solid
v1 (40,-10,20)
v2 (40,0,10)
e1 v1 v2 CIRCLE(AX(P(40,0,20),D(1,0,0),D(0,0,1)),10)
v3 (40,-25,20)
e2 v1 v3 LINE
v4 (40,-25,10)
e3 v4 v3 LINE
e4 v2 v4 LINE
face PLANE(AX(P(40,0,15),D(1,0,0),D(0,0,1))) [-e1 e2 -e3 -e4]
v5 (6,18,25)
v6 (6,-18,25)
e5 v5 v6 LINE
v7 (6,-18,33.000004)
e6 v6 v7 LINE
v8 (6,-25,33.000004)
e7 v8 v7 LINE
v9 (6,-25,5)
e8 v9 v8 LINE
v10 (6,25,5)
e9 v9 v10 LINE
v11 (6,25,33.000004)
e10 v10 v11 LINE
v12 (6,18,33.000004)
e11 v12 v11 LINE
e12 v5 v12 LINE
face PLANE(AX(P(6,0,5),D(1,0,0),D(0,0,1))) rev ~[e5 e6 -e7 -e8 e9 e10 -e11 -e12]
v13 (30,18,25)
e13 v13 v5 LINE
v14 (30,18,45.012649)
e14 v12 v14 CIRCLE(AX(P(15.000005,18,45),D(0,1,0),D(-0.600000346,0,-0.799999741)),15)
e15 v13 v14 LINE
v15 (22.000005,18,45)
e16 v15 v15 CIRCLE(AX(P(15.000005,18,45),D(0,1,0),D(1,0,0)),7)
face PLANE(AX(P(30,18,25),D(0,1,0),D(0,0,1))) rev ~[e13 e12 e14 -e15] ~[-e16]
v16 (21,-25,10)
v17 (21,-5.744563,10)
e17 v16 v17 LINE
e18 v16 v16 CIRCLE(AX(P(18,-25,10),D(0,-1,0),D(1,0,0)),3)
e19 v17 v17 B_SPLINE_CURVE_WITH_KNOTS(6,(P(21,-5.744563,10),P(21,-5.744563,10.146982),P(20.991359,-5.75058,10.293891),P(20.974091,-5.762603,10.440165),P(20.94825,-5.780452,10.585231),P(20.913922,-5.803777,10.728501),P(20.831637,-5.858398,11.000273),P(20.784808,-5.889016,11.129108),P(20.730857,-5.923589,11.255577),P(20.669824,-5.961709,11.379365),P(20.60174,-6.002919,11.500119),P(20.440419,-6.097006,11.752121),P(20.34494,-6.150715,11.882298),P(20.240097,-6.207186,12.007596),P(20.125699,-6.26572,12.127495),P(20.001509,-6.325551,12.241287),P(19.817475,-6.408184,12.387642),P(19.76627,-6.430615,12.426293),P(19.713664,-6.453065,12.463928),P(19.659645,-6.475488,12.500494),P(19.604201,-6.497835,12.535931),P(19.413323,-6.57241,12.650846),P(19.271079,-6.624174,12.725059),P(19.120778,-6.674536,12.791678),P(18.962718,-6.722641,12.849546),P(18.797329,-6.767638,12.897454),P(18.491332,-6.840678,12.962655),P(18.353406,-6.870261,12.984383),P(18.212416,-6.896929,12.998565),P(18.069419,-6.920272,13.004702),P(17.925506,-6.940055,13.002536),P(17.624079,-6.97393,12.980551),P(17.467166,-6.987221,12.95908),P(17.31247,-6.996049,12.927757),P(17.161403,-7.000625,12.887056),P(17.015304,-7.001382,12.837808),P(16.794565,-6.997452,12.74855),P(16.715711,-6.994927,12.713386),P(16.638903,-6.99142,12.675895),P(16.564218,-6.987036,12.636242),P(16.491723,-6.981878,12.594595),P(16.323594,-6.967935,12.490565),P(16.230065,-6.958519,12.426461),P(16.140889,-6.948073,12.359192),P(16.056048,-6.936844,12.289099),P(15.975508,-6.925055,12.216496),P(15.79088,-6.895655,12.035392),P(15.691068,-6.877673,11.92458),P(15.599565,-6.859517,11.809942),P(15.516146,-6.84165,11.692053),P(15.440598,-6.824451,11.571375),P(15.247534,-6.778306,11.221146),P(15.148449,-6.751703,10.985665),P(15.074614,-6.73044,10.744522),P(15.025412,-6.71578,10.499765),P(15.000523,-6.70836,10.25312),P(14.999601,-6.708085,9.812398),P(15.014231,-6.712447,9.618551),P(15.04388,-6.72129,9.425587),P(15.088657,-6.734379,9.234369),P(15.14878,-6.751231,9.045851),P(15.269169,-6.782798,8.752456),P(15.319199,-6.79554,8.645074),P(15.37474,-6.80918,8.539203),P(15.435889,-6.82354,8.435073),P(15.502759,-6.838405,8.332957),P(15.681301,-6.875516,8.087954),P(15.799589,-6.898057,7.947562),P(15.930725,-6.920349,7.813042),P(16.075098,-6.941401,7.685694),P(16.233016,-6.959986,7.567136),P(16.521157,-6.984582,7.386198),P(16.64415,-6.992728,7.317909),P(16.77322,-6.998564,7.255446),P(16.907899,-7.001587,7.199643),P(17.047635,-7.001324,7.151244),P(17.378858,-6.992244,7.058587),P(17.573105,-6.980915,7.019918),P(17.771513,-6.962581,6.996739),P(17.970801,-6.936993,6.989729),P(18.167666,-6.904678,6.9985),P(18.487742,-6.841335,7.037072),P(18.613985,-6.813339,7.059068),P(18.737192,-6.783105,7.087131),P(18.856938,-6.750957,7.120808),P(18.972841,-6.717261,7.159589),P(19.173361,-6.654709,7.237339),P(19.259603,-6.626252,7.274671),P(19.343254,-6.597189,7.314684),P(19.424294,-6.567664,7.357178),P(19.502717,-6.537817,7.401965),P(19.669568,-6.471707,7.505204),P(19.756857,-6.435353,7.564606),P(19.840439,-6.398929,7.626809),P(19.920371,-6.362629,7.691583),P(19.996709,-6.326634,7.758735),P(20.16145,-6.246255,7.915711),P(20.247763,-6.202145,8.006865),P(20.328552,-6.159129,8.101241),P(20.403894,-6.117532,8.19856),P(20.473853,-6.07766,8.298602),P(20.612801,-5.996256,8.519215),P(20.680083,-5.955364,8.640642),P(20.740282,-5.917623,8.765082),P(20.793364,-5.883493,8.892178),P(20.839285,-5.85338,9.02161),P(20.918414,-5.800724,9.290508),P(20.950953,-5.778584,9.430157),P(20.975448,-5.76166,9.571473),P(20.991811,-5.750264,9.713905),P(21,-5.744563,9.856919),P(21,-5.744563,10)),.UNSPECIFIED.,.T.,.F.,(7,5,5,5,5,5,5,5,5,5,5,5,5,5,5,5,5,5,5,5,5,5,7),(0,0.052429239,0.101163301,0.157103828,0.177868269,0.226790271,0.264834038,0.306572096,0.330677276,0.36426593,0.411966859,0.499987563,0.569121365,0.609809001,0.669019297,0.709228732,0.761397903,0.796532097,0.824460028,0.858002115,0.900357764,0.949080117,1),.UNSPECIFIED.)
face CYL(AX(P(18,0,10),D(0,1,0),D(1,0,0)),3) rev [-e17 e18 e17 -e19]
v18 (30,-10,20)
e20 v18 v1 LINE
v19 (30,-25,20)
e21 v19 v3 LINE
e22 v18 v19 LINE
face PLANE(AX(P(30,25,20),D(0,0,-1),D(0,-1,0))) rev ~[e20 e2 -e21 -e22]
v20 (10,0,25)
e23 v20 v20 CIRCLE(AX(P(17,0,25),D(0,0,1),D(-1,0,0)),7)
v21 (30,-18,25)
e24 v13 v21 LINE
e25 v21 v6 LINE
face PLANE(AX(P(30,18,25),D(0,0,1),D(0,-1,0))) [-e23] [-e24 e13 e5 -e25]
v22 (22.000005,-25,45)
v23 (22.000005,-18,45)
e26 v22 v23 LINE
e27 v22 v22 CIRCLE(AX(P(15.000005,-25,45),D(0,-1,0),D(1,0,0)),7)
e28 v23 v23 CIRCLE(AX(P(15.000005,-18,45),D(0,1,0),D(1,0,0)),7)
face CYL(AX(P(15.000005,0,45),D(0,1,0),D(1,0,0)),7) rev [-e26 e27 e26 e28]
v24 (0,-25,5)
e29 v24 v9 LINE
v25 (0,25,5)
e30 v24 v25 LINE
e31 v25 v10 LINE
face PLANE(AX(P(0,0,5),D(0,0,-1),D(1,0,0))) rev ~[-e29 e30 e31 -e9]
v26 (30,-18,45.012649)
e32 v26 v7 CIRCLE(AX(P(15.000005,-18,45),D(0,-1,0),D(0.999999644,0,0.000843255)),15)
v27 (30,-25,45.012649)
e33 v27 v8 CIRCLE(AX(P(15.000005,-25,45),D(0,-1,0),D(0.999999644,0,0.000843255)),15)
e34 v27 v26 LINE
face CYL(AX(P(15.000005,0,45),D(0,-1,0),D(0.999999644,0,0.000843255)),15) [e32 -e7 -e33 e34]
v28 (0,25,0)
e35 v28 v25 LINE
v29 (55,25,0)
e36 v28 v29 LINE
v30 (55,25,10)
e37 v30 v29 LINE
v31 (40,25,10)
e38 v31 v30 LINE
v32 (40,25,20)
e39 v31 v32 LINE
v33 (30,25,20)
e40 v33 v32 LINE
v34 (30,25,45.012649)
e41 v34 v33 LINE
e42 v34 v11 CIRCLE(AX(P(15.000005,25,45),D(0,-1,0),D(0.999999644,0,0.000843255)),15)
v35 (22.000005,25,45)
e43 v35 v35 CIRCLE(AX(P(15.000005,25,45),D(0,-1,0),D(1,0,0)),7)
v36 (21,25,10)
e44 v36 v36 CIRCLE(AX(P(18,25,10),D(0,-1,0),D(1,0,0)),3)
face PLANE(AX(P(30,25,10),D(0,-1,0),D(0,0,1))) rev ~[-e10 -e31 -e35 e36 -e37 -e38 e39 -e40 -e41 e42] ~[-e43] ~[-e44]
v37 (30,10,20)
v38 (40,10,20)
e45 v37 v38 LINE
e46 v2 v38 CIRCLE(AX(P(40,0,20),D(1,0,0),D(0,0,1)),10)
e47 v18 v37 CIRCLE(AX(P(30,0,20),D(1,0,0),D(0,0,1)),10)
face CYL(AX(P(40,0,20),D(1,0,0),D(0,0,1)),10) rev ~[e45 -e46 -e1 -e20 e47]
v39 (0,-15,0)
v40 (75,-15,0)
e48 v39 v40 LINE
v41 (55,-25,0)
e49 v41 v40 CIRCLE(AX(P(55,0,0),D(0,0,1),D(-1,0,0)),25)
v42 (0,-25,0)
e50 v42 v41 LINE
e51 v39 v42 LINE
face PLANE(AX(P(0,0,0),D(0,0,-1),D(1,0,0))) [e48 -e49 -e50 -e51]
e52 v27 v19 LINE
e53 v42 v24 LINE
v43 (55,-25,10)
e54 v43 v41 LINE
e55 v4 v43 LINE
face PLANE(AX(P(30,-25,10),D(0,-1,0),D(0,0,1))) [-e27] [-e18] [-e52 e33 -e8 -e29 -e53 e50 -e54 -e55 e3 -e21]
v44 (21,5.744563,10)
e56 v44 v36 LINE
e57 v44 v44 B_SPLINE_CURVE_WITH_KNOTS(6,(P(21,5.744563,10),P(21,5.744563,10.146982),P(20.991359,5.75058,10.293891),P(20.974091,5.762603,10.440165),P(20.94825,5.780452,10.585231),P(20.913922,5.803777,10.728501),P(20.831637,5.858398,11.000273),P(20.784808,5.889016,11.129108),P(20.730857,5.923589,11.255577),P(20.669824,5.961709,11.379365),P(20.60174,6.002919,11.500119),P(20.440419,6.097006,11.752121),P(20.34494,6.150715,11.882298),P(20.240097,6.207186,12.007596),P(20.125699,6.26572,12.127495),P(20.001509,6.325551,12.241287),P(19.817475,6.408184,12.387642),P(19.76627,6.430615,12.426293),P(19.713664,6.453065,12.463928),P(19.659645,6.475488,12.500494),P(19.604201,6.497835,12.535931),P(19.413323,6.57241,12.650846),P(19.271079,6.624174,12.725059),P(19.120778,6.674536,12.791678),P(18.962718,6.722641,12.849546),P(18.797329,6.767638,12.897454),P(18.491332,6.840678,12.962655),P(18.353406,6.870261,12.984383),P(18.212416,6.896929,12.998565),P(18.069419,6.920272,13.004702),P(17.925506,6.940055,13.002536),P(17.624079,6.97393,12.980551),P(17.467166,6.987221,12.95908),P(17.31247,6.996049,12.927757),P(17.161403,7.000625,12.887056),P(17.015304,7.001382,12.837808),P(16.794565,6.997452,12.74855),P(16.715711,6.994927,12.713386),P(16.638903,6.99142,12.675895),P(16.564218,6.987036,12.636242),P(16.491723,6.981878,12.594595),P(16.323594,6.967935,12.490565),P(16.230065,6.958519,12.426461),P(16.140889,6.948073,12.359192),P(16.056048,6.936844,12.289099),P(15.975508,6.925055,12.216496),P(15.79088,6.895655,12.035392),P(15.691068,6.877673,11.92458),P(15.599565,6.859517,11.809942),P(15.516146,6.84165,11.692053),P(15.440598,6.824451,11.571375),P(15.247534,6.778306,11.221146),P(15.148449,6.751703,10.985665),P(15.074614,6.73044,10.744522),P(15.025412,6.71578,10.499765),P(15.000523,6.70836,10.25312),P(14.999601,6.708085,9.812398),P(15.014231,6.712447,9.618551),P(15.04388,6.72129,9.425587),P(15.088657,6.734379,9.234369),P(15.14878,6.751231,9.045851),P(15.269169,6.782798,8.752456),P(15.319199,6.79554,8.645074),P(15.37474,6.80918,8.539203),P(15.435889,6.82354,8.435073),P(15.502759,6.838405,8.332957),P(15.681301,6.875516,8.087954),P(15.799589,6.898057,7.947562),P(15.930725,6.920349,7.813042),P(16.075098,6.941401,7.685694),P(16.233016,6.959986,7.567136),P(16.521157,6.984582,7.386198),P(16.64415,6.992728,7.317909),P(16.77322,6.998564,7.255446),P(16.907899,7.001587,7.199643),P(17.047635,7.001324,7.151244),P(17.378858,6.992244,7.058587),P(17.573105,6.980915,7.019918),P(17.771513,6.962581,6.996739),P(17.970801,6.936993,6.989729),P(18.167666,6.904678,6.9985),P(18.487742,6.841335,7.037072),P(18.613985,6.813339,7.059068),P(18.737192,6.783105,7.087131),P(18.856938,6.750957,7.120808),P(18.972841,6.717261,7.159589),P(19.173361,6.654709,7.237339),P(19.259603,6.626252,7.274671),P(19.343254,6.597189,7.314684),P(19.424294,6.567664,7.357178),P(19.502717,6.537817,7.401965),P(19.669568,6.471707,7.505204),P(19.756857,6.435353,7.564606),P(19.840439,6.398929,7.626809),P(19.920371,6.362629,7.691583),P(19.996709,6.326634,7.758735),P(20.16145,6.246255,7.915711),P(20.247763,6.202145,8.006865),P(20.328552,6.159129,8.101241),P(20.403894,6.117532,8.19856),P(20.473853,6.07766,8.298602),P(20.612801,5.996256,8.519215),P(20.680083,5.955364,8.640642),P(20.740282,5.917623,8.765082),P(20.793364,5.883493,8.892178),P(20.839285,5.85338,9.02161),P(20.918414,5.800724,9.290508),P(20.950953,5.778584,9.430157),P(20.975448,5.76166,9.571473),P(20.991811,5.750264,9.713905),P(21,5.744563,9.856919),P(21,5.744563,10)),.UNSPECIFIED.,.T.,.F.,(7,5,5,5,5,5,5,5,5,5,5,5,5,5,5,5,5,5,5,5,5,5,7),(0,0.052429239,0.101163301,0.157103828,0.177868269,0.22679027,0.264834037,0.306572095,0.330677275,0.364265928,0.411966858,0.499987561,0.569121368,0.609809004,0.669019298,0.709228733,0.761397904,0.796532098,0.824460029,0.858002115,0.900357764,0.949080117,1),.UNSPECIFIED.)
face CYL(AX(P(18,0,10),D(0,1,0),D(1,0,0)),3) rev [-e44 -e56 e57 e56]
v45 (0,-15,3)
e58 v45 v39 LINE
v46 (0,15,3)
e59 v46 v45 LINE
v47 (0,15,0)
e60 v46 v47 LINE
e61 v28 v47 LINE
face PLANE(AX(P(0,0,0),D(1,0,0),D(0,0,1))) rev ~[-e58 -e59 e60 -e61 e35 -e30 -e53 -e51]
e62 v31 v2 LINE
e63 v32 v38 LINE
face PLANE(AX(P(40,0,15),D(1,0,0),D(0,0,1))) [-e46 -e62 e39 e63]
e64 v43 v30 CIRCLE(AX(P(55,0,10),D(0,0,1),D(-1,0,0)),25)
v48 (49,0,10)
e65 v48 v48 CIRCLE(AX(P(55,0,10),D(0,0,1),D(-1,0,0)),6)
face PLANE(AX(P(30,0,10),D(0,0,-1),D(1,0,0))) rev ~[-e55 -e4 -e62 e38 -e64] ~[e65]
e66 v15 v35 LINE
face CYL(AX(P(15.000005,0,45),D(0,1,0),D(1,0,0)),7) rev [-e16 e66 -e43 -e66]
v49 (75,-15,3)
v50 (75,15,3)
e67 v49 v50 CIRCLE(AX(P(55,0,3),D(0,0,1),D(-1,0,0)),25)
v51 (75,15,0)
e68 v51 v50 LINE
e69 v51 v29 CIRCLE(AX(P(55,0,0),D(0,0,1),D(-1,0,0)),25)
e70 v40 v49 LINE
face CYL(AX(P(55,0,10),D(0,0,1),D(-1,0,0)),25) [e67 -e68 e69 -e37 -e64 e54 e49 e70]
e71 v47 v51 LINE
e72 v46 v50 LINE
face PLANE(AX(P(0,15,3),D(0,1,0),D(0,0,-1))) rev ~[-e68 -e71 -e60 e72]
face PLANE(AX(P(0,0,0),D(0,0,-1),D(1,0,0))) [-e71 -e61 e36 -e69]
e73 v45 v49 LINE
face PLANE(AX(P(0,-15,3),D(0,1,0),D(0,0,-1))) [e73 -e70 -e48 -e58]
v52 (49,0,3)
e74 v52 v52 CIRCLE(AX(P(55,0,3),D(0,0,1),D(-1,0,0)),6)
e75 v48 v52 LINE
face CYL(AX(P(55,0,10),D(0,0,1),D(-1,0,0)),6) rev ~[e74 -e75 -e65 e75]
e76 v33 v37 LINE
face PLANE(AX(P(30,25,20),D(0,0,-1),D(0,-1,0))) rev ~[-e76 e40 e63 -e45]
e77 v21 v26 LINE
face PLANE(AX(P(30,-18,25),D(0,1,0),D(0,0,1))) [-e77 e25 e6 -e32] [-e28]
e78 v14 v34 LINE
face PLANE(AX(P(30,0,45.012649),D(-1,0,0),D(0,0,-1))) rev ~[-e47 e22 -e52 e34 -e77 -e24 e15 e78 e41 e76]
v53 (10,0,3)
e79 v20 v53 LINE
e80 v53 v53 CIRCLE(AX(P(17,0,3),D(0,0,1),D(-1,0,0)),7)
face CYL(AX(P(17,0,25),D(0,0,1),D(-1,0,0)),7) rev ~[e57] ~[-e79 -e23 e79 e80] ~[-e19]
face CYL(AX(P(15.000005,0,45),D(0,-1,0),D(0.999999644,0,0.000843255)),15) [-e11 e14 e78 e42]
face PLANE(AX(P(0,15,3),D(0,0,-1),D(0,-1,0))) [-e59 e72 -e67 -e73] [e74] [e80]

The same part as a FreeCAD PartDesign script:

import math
import FreeCAD as App
import Part
import Sketcher
from FreeCAD import Vector


def add_polygon(sketch, points):
    """Adds a closed chain of lines whose ends are joined by coincident constraints."""
    first, n = sketch.GeometryCount, len(points)
    for a, b in zip(points, points[1:] + points[:1]):
        sketch.addGeometry(Part.LineSegment(App.Vector(*a, 0), App.Vector(*b, 0)), False)
    for i in range(n):
        sketch.addConstraint(Sketcher.Constraint("Coincident", first + i, 2, first + (i + 1) % n, 1))

doc = App.newDocument("Part")
body = doc.addObject("PartDesign::Body", "Body")

# Sketch on XZ plane
sketch1 = doc.addObject("Sketcher::SketchObject", "Sketch")
body.addObject(sketch1)
sketch1.AttachmentSupport = (doc.XZ_Plane, [""])
sketch1.MapMode = "FlatFace"
sketch1.addGeometry([
    Part.LineSegment(Vector(0, 5, 0), Vector(0, 0, 0)),  # 0
    Part.LineSegment(Vector(0, 0, 0), Vector(55, 0, 0)),  # 1
    Part.LineSegment(Vector(55, 0, 0), Vector(55, 10, 0)),  # 2
    Part.LineSegment(Vector(55, 10, 0), Vector(30, 10, 0)),  # 3
    Part.LineSegment(Vector(30, 10, 0), Vector(30, 45.012649, 0)),  # 4
    Part.ArcOfCircle(Part.Circle(Vector(15.000005, 45, 0), Vector(0, 0, 1), 15), math.radians(0.048315), math.radians(233.130078)),  # 5
    Part.LineSegment(Vector(6, 33.000004, 0), Vector(6, 5, 0)),  # 6
    Part.LineSegment(Vector(6, 5, 0), Vector(0, 5, 0)),  # 7
    Part.Circle(Vector(18, 10, 0), Vector(0, 0, 1), 3),  # 8
    Part.Circle(Vector(15.000005, 45, 0), Vector(0, 0, 1), 7),  # 9
], False)
sketch1.addConstraint([
    Sketcher.Constraint("Coincident", 0, 2, 1, 1),
    Sketcher.Constraint("Coincident", 1, 2, 2, 1),
    Sketcher.Constraint("Coincident", 2, 2, 3, 1),
    Sketcher.Constraint("Coincident", 3, 2, 4, 1),
    Sketcher.Constraint("Coincident", 4, 2, 5, 1),
    Sketcher.Constraint("Coincident", 5, 2, 6, 1),
    Sketcher.Constraint("Coincident", 6, 2, 7, 1),
    Sketcher.Constraint("Coincident", 7, 2, 0, 1),
    Sketcher.Constraint("Vertical", 0),
    Sketcher.Constraint("Horizontal", 1),
    Sketcher.Constraint("Vertical", 2),
    Sketcher.Constraint("Horizontal", 3),
    Sketcher.Constraint("Vertical", 4),
    Sketcher.Constraint("Vertical", 6),
    Sketcher.Constraint("Horizontal", 7),
    Sketcher.Constraint("Coincident", 0, 2, -1, 1),
    Sketcher.Constraint("Coincident", 9, 3, 5, 3),
    Sketcher.Constraint("Horizontal", 8, 3, 2, 2),
    Sketcher.Constraint("Diameter", 8, 6.0),
    Sketcher.Constraint("Diameter", 9, 14.0),
    Sketcher.Constraint("Radius", 5, 15.0),
    Sketcher.Constraint("DistanceX", 1, 1, 1, 2, 55.0),
    Sketcher.Constraint("DistanceX", 3, 2, 3, 1, 25.0),
    Sketcher.Constraint("DistanceX", 7, 2, 7, 1, 6.0),
    Sketcher.Constraint("DistanceY", 0, 2, 0, 1, 5.0),
    Sketcher.Constraint("DistanceY", 2, 1, 2, 2, 10.0),
    Sketcher.Constraint("DistanceY", -1, 1, 5, 3, 45.0),
    Sketcher.Constraint("DistanceX", -1, 1, 8, 3, 18.0),
    Sketcher.Constraint("DistanceY", 4, 1, 4, 2, 35.012649),
])
pad1 = doc.addObject("PartDesign::Pad", "Pad")
body.addObject(pad1)
pad1.Profile = sketch1
pad1.Length = 50
pad1.Midplane = True

# Sketch on XY plane
sketch2 = doc.addObject("Sketcher::SketchObject", "Sketch001")
body.addObject(sketch2)
sketch2.AttachmentSupport = (doc.XY_Plane, [""])
sketch2.MapMode = "FlatFace"
sketch2.AttachmentOffset = App.Placement(Vector(0, 0, 10), App.Rotation())
sketch2.addGeometry(Part.Circle(Vector(55, 0, 0), Vector(0, 0, 1), 25), False)
sketch2.addConstraint([
    Sketcher.Constraint("PointOnObject", 0, 3, -1),
    Sketcher.Constraint("Diameter", 0, 50.0),
    Sketcher.Constraint("DistanceX", -1, 1, 0, 3, 55.0),
])
pad2 = doc.addObject("PartDesign::Pad", "Pad001")
body.addObject(pad2)
pad2.Profile = sketch2
pad2.Length = 10
pad2.Reversed = True

# Sketch on YZ plane
sketch3 = doc.addObject("Sketcher::SketchObject", "Sketch002")
body.addObject(sketch3)
sketch3.AttachmentSupport = (doc.YZ_Plane, [""])
sketch3.MapMode = "FlatFace"
sketch3.AttachmentOffset = App.Placement(Vector(0, 0, 30), App.Rotation())
add_polygon(sketch3, [(-18, 25), (18, 25), (18, 60), (-18, 60)])  # lines 0-3
sketch3.addConstraint([
    Sketcher.Constraint("Horizontal", 0),
    Sketcher.Constraint("Vertical", 1),
    Sketcher.Constraint("Horizontal", 2),
    Sketcher.Constraint("Vertical", 3),
    Sketcher.Constraint("DistanceX", 0, 1, 0, 2, 36.0),
    Sketcher.Constraint("DistanceY", 1, 1, 1, 2, 35.0),
    Sketcher.Constraint("DistanceX", -1, 1, 0, 2, 18.0),
    Sketcher.Constraint("DistanceY", -1, 1, 0, 2, 25.0),
])
pocket1 = doc.addObject("PartDesign::Pocket", "Pocket")
body.addObject(pocket1)
pocket1.Profile = sketch3
pocket1.Type = "ThroughAll"

# Sketch on XY plane
sketch4 = doc.addObject("Sketcher::SketchObject", "Sketch003")
body.addObject(sketch4)
sketch4.AttachmentSupport = (doc.XY_Plane, [""])
sketch4.MapMode = "FlatFace"
sketch4.AttachmentOffset = App.Placement(Vector(0, 0, 25), App.Rotation())
sketch4.addGeometry(Part.Circle(Vector(17, 0, 0), Vector(0, 0, 1), 7), False)
sketch4.addConstraint([
    Sketcher.Constraint("PointOnObject", 0, 3, -1),
    Sketcher.Constraint("Diameter", 0, 14.0),
    Sketcher.Constraint("DistanceX", -1, 1, 0, 3, 17.0),
])
pocket2 = doc.addObject("PartDesign::Pocket", "Pocket001")
body.addObject(pocket2)
pocket2.Profile = sketch4
pocket2.Type = "ThroughAll"

# Sketch on XY plane
sketch5 = doc.addObject("Sketcher::SketchObject", "Sketch004")
body.addObject(sketch5)
sketch5.AttachmentSupport = (doc.XY_Plane, [""])
sketch5.MapMode = "FlatFace"
sketch5.AttachmentOffset = App.Placement(Vector(0, 0, 10), App.Rotation())
sketch5.addGeometry(Part.Circle(Vector(55, 0, 0), Vector(0, 0, 1), 6), False)
sketch5.addConstraint([
    Sketcher.Constraint("PointOnObject", 0, 3, -1),
    Sketcher.Constraint("Diameter", 0, 12.0),
    Sketcher.Constraint("DistanceX", -1, 1, 0, 3, 55.0),
])
pocket3 = doc.addObject("PartDesign::Pocket", "Pocket002")
body.addObject(pocket3)
pocket3.Profile = sketch5
pocket3.Type = "ThroughAll"

# Sketch on YZ plane
sketch6 = doc.addObject("Sketcher::SketchObject", "Sketch005")
body.addObject(sketch6)
sketch6.AttachmentSupport = (doc.YZ_Plane, [""])
sketch6.MapMode = "FlatFace"
sketch6.AttachmentOffset = App.Placement(Vector(0, 0, 30), App.Rotation())
add_polygon(sketch6, [(-25, 10), (25, 10), (25, 20), (-25, 20)])  # lines 0-3
sketch6.addConstraint([
    Sketcher.Constraint("Horizontal", 0),
    Sketcher.Constraint("Vertical", 1),
    Sketcher.Constraint("Horizontal", 2),
    Sketcher.Constraint("Vertical", 3),
    Sketcher.Constraint("DistanceX", 0, 1, 0, 2, 50.0),
    Sketcher.Constraint("DistanceY", 1, 1, 1, 2, 10.0),
    Sketcher.Constraint("DistanceX", -1, 1, 0, 2, 25.0),
    Sketcher.Constraint("DistanceY", -1, 1, 0, 2, 10.0),
])
pad3 = doc.addObject("PartDesign::Pad", "Pad002")
body.addObject(pad3)
pad3.Profile = sketch6
pad3.Length = 10

# Sketch on YZ plane
sketch7 = doc.addObject("Sketcher::SketchObject", "Sketch006")
body.addObject(sketch7)
sketch7.AttachmentSupport = (doc.YZ_Plane, [""])
sketch7.MapMode = "FlatFace"
sketch7.AttachmentOffset = App.Placement(Vector(0, 0, 40), App.Rotation())
sketch7.addGeometry(Part.Circle(Vector(0, 20, 0), Vector(0, 0, 1), 10), False)
sketch7.addConstraint([
    Sketcher.Constraint("PointOnObject", 0, 3, -2),
    Sketcher.Constraint("Diameter", 0, 20.0),
    Sketcher.Constraint("DistanceY", -1, 1, 0, 3, 20.0),
])
pocket4 = doc.addObject("PartDesign::Pocket", "Pocket003")
body.addObject(pocket4)
pocket4.Profile = sketch7
pocket4.Length = 10

# Sketch on YZ plane
sketch8 = doc.addObject("Sketcher::SketchObject", "Sketch007")
body.addObject(sketch8)
sketch8.AttachmentSupport = (doc.YZ_Plane, [""])
sketch8.MapMode = "FlatFace"
add_polygon(sketch8, [(-15, 3), (15, 3), (15, 0), (-15, 0)])  # lines 0-3
sketch8.addConstraint([
    Sketcher.Constraint("Horizontal", 0),
    Sketcher.Constraint("Vertical", 1),
    Sketcher.Constraint("Horizontal", 2),
    Sketcher.Constraint("Vertical", 3),
    Sketcher.Constraint("Symmetric", 1, 2, 2, 2, -1, 1),
    Sketcher.Constraint("DistanceX", 0, 1, 0, 2, 30.0),
    Sketcher.Constraint("DistanceY", 1, 2, 1, 1, 3.0),
])
pocket5 = doc.addObject("PartDesign::Pocket", "Pocket004")
body.addObject(pocket5)
pocket5.Profile = sketch8
pocket5.Type = "ThroughAll"
pocket5.Reversed = True

doc.recompute()
